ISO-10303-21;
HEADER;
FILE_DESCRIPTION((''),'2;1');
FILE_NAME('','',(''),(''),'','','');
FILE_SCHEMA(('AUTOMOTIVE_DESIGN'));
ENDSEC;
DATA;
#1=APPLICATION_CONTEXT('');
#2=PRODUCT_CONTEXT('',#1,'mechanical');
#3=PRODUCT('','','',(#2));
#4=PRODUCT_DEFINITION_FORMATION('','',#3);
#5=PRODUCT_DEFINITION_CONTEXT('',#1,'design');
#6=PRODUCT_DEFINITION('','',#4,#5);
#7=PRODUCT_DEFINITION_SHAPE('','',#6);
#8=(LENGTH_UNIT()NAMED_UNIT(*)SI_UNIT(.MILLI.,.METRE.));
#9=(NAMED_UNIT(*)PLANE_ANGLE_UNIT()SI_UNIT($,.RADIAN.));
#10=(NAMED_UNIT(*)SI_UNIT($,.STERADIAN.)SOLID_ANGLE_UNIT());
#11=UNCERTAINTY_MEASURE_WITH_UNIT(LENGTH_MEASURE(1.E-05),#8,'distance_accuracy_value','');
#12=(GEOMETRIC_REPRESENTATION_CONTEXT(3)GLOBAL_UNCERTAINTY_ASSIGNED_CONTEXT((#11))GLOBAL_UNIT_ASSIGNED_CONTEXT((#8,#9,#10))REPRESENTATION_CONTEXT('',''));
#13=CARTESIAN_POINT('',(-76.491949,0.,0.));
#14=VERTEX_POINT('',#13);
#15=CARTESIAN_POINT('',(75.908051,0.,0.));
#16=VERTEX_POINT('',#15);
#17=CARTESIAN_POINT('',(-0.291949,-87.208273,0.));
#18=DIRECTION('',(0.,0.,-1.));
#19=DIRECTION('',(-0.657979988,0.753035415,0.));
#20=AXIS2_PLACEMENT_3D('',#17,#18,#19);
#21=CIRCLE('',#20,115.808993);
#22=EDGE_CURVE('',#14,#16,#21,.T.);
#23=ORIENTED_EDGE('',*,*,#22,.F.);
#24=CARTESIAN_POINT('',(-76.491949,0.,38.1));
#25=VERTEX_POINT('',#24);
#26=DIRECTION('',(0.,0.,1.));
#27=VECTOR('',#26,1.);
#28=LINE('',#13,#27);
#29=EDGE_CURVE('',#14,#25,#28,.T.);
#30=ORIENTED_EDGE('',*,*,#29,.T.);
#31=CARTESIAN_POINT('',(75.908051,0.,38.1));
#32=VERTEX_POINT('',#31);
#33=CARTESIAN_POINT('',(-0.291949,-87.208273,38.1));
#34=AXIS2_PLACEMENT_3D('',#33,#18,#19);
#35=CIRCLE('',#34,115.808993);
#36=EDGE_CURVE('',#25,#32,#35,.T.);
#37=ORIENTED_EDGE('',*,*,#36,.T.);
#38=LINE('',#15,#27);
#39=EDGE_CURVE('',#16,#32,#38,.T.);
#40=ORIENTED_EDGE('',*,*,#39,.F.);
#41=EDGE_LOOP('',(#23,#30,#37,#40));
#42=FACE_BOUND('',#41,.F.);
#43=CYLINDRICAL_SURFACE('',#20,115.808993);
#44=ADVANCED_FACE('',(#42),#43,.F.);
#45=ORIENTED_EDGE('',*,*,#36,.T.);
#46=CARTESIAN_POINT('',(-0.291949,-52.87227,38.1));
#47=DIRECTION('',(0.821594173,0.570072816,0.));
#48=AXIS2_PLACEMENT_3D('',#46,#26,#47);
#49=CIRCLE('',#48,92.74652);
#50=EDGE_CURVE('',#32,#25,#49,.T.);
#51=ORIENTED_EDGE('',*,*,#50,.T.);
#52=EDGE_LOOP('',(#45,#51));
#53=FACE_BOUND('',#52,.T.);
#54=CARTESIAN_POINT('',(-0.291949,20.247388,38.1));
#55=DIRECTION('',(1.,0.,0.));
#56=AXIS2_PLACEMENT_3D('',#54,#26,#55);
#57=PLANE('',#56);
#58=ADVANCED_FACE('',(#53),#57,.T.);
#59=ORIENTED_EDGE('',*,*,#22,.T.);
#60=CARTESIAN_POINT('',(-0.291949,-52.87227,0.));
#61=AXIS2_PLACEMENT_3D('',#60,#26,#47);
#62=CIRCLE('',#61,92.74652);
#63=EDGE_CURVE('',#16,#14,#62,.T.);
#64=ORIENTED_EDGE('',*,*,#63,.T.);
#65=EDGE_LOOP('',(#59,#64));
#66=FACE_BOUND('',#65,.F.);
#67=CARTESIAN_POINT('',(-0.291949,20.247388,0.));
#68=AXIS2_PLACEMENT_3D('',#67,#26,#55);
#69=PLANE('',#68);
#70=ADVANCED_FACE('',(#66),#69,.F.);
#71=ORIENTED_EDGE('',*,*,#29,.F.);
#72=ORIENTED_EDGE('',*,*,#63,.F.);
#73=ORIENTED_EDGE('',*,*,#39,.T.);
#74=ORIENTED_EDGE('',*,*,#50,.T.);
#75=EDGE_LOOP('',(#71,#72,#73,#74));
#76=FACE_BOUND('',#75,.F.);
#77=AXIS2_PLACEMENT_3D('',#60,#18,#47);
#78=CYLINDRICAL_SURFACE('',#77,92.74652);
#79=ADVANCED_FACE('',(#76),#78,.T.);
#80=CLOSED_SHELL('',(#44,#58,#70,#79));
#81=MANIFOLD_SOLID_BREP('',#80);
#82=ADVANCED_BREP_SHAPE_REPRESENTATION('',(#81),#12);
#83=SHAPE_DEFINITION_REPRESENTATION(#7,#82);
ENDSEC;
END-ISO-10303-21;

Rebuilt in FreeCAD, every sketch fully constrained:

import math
import FreeCAD as App
import Part
import Sketcher

V = App.Vector
Q = App.Units.Quantity

doc = App.newDocument("Part")
params = doc.addObject("Spreadsheet::Sheet", "Params")
for row, (alias, value) in enumerate([
    ("pad1_length", "1.5 in"),
], start=1):
    params.set(f"A{row}", alias)
    params.set(f"B{row}", "=" + value)
    params.setAlias(f"B{row}", alias)

body = doc.addObject("PartDesign::Body", "Body")

# Sketch on XY plane
sketch1 = body.newObject("Sketcher::SketchObject", "Sketch")
sketch1.AttachmentSupport = (doc.getObject("XY_Plane"), [""])
sketch1.MapMode = "FlatFace"
sketch1.addGeometry([
    Part.ArcOfCircle(Part.Circle(V(-0.291949, -87.208273, 0), V(0, 0, 1), 115.808993), math.radians(48.854003), math.radians(131.145997)),
    Part.ArcOfCircle(Part.Circle(V(-0.291949, -52.87227, 0), V(0, 0, 1), 92.74652), math.radians(34.755304), math.radians(145.244696)),
], False)
sketch1.addConstraint([
    Sketcher.Constraint("Coincident", 0, 1, 1, 1),
    Sketcher.Constraint("Coincident", 1, 2, 0, 2),
    Sketcher.Constraint("PointOnObject", 0, 1, -1),
    Sketcher.Constraint("PointOnObject", 1, 2, -1),
    Sketcher.Constraint("DistanceX", 1, 3, 0, 1, Q("3 in")),
    Sketcher.Constraint("Radius", 1, Q("92.74652 mm")),
    Sketcher.Constraint("Radius", 0, Q("115.808993 mm")),
    Sketcher.Constraint("DistanceX", 0, 3, -1, 1, Q("0.291949 mm")),
])
pad1 = body.newObject("PartDesign::Pad", "Pad")
pad1.Profile = sketch1
pad1.setExpression("Length", "Params.pad1_length")

doc.recompute()
